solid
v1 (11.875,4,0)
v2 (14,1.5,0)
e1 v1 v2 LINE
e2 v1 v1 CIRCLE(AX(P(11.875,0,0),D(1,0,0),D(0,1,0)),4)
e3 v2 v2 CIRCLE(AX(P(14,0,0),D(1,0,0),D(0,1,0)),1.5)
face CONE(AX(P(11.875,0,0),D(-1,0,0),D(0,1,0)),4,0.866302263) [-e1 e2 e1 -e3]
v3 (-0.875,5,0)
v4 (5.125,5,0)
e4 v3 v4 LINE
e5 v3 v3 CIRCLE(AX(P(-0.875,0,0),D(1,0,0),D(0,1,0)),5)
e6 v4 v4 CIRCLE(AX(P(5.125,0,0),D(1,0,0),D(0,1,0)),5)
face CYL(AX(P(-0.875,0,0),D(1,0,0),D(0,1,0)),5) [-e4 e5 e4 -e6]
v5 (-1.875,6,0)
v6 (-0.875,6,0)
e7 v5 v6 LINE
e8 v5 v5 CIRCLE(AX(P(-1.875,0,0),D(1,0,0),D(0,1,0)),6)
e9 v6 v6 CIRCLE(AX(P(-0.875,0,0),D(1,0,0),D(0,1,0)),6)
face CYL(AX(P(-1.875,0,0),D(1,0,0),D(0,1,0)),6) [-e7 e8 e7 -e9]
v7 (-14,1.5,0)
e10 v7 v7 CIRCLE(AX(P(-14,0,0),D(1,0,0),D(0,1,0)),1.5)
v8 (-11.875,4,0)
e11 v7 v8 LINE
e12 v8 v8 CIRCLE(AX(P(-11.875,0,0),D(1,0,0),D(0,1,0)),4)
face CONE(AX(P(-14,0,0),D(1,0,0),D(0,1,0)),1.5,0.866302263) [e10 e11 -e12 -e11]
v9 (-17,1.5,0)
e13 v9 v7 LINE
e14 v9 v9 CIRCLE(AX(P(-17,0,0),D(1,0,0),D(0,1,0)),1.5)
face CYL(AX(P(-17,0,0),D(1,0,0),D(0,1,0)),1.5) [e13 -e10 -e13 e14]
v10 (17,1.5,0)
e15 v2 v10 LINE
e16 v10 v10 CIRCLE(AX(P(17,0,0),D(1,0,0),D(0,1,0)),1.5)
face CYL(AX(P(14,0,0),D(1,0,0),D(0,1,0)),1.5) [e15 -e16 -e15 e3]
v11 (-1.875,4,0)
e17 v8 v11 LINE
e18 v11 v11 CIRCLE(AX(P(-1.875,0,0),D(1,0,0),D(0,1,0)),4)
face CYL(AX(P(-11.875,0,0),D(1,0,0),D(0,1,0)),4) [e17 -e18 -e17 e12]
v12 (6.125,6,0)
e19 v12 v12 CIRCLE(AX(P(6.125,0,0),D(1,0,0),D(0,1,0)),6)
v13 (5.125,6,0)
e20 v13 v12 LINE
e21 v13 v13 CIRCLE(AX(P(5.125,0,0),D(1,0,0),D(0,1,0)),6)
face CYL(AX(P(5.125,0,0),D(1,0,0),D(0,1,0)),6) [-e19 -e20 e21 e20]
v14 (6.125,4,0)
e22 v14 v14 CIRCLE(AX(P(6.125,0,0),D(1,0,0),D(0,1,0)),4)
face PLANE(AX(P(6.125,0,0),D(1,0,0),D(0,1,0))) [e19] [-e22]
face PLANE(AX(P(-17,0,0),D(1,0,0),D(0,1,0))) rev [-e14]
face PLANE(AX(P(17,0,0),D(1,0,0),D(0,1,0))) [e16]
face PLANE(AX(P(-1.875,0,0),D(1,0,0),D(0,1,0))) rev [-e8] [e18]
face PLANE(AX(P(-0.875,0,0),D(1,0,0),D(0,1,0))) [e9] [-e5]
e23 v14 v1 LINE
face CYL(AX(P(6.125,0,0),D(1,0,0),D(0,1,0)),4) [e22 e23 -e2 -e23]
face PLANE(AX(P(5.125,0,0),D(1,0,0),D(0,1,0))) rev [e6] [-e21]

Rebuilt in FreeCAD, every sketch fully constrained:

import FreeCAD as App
import Part
import Sketcher

V = App.Vector
Q = App.Units.Quantity

doc = App.newDocument("Part")
body = doc.addObject("PartDesign::Body", "Body")

# Sketch on XY plane
sketch1 = doc.addObject("Sketcher::SketchObject", "Sketch")
body.addObject(sketch1)
sketch1.AttachmentSupport = (doc.XY_Plane, [""])
sketch1.MapMode = "FlatFace"
sketch1.addGeometry([
    Part.LineSegment(V(-17, 1.5, 0), V(-17, 0, 0)),  # 0
    Part.LineSegment(V(-17, 0, 0), V(17, 0, 0)),  # 1
    Part.LineSegment(V(17, 0, 0), V(17, 1.5, 0)),  # 2
    Part.LineSegment(V(17, 1.5, 0), V(14, 1.5, 0)),  # 3
    Part.LineSegment(V(14, 1.5, 0), V(11.9, 4, 0)),  # 4
    Part.LineSegment(V(11.9, 4, 0), V(6.1, 4, 0)),  # 5
    Part.LineSegment(V(6.1, 4, 0), V(6.1, 6, 0)),  # 6
    Part.LineSegment(V(6.1, 6, 0), V(5.1, 6, 0)),  # 7
    Part.LineSegment(V(5.1, 6, 0), V(5.1, 5, 0)),  # 8
    Part.LineSegment(V(5.1, 5, 0), V(-0.9, 5, 0)),  # 9
    Part.LineSegment(V(-0.9, 5, 0), V(-0.9, 6, 0)),  # 10
    Part.LineSegment(V(-0.9, 6, 0), V(-1.9, 6, 0)),  # 11
    Part.LineSegment(V(-1.9, 6, 0), V(-1.9, 4, 0)),  # 12
    Part.LineSegment(V(-1.9, 4, 0), V(-11.9, 4, 0)),  # 13
    Part.LineSegment(V(-11.9, 4, 0), V(-14, 1.5, 0)),  # 14
    Part.LineSegment(V(-14, 1.5, 0), V(-17, 1.5, 0)),  # 15
], False)
sketch1.addConstraint([
    Sketcher.Constraint("Coincident", 0, 2, 1, 1),
    Sketcher.Constraint("Coincident", 1, 2, 2, 1),
    Sketcher.Constraint("Coincident", 2, 2, 3, 1),
    Sketcher.Constraint("Coincident", 3, 2, 4, 1),
    Sketcher.Constraint("Coincident", 4, 2, 5, 1),
    Sketcher.Constraint("Coincident", 5, 2, 6, 1),
    Sketcher.Constraint("Coincident", 6, 2, 7, 1),
    Sketcher.Constraint("Coincident", 7, 2, 8, 1),
    Sketcher.Constraint("Coincident", 8, 2, 9, 1),
    Sketcher.Constraint("Coincident", 9, 2, 10, 1),
    Sketcher.Constraint("Coincident", 10, 2, 11, 1),
    Sketcher.Constraint("Coincident", 11, 2, 12, 1),
    Sketcher.Constraint("Coincident", 12, 2, 13, 1),
    Sketcher.Constraint("Coincident", 13, 2, 14, 1),
    Sketcher.Constraint("Coincident", 14, 2, 15, 1),
    Sketcher.Constraint("Coincident", 15, 2, 0, 1),
    Sketcher.Constraint("Vertical", 0),
    Sketcher.Constraint("Horizontal", 1),
    Sketcher.Constraint("Vertical", 2),
    Sketcher.Constraint("Horizontal", 3),
    Sketcher.Constraint("Horizontal", 5),
    Sketcher.Constraint("Vertical", 6),
    Sketcher.Constraint("Horizontal", 7),
    Sketcher.Constraint("Vertical", 8),
    Sketcher.Constraint("Horizontal", 9),
    Sketcher.Constraint("Vertical", 10),
    Sketcher.Constraint("Horizontal", 11),
    Sketcher.Constraint("Vertical", 12),
    Sketcher.Constraint("Horizontal", 13),
    Sketcher.Constraint("Horizontal", 15),
    Sketcher.Constraint("Symmetric", 0, 2, 1, 2, -1, 1),
    Sketcher.Constraint("Symmetric", 4, 2, 13, 2, -2),
    Sketcher.Constraint("Symmetric", 3, 2, 14, 2, -2),
    Sketcher.Constraint("Horizontal", 7, 2, 10, 2),
    Sketcher.Constraint("Equal", 7, 11),
    Sketcher.Constraint("Equal", 11, 8),
    Sketcher.Constraint("DistanceX", 1, 1, 1, 2, Q("34 mm")),
    Sketcher.Constraint("DistanceX", 3, 2, 3, 1, Q("3 mm")),
    Sketcher.Constraint("DistanceX", 7, 2, 7, 1, Q("1 mm")),
    Sketcher.Constraint("DistanceX", 9, 2, 9, 1, Q("6 mm")),
    Sketcher.Constraint("DistanceX", 13, 2, 13, 1, Q("10 mm")),
    Sketcher.Constraint("DistanceY", -1, 1, 6, 2, Q("6 mm")),
    Sketcher.Constraint("DistanceY", 5, 2, 8, 2, Q("1 mm")),
    Sketcher.Constraint("DistanceX", 5, 2, 5, 1, Q("5.75 mm")),
    Sketcher.Constraint("DistanceY", 0, 2, 0, 1, Q("1.5 mm")),
])
revolution = doc.addObject("PartDesign::Revolution", "Revolution")
body.addObject(revolution)
revolution.Profile = sketch1
revolution.ReferenceAxis = (sketch1, ["H_Axis"])
revolution.Angle = 360

doc.recompute()
